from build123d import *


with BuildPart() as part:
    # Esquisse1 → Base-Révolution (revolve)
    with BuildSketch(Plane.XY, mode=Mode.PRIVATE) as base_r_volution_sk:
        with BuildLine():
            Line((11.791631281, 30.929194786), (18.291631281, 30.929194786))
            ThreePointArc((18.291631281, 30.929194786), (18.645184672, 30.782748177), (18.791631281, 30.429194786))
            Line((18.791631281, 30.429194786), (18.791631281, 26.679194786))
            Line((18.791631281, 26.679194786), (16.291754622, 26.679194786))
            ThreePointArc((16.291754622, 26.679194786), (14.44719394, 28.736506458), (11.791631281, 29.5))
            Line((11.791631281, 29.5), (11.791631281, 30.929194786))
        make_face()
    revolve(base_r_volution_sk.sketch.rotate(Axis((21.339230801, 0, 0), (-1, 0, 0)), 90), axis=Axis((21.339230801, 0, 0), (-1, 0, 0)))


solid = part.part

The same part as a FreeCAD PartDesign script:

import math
import FreeCAD as App
import Part
import Sketcher
Q = App.Units.Quantity

doc = App.newDocument("Part")
params = doc.addObject("Spreadsheet::Sheet", "Params")
for row, (alias, value) in enumerate([
    ("sketch1_radius", "5 mm"),
    ("sketch1_radius2", "0.5 mm"),
    ("sketch1_width", "6.5 mm"),
    ("sketch1_height", "3.75 mm"),
    ("revolution_angle", "360 deg"),
], start=1):
    params.set(f"A{row}", alias)
    params.set(f"B{row}", "=" + value)
    params.setAlias(f"B{row}", alias)

body = doc.addObject("PartDesign::Body", "Body")

# Sketch on XY plane
sketch1 = body.newObject("Sketcher::SketchObject", "Sketch")
sketch1.AttachmentSupport = (doc.getObject("XY_Plane"), [""])
sketch1.MapMode = "FlatFace"
sketch1.addGeometry([
    Part.LineSegment(App.Vector(18.29, 30.93, 0), App.Vector(11.79, 30.93, 0)),  # 0
    Part.LineSegment(App.Vector(11.79, 30.93, 0), App.Vector(11.79, 29.5, 0)),  # 1
    Part.ArcOfCircle(Part.Circle(App.Vector(11.79, 24.5, 0), App.Vector(0, 0, 1), 5), math.radians(26), math.radians(90)),  # 2
    Part.LineSegment(App.Vector(16.29, 26.68, 0), App.Vector(18.79, 26.68, 0)),  # 3
    Part.LineSegment(App.Vector(18.79, 26.68, 0), App.Vector(18.79, 30.43, 0)),  # 4
    Part.ArcOfCircle(Part.Circle(App.Vector(18.29, 30.43, 0), App.Vector(0, 0, 1), 0.5), math.radians(0), math.radians(90)),  # 5
], False)
sketch1.addConstraint([
    Sketcher.Constraint("Coincident", 0, 2, 1, 1),
    Sketcher.Constraint("Coincident", 1, 2, 2, 2),
    Sketcher.Constraint("Coincident", 2, 1, 3, 1),
    Sketcher.Constraint("Coincident", 3, 2, 4, 1),
    Sketcher.Constraint("Tangent", 4, 2, 5, 1),
    Sketcher.Constraint("Tangent", 5, 2, 0, 1),
    Sketcher.Constraint("Horizontal", 0),
    Sketcher.Constraint("Vertical", 1),
    Sketcher.Constraint("Horizontal", 3),
    Sketcher.Constraint("Vertical", 4),
    Sketcher.Constraint("Vertical", 2, 3, 0, 2),
    Sketcher.Constraint("Radius", 2, Q("5 mm")),
    Sketcher.Constraint("Radius", 5, Q("0.5 mm")),
    Sketcher.Constraint("DistanceX", 0, 2, 0, 1, Q("6.5 mm")),
    Sketcher.Constraint("DistanceY", 4, 1, 4, 2, Q("3.75 mm")),
    Sketcher.Constraint("DistanceY", -1, 1, 2, 3, Q("24.5 mm")),
    Sketcher.Constraint("DistanceX", 3, 1, 3, 2, Q("2.499877 mm")),
    Sketcher.Constraint("DistanceX", -1, 1, 2, 3, Q("11.791631 mm")),
])
sketch1.setExpression("Constraints[11]", "Params.sketch1_radius")
sketch1.setExpression("Constraints[12]", "Params.sketch1_radius2")
sketch1.setExpression("Constraints[13]", "Params.sketch1_width")
sketch1.setExpression("Constraints[14]", "Params.sketch1_height")
revolution = body.newObject("PartDesign::Revolution", "Revolution")
revolution.Profile = sketch1
revolution.ReferenceAxis = (sketch1, ["H_Axis"])
revolution.setExpression("Angle", "Params.revolution_angle")

doc.recompute()
